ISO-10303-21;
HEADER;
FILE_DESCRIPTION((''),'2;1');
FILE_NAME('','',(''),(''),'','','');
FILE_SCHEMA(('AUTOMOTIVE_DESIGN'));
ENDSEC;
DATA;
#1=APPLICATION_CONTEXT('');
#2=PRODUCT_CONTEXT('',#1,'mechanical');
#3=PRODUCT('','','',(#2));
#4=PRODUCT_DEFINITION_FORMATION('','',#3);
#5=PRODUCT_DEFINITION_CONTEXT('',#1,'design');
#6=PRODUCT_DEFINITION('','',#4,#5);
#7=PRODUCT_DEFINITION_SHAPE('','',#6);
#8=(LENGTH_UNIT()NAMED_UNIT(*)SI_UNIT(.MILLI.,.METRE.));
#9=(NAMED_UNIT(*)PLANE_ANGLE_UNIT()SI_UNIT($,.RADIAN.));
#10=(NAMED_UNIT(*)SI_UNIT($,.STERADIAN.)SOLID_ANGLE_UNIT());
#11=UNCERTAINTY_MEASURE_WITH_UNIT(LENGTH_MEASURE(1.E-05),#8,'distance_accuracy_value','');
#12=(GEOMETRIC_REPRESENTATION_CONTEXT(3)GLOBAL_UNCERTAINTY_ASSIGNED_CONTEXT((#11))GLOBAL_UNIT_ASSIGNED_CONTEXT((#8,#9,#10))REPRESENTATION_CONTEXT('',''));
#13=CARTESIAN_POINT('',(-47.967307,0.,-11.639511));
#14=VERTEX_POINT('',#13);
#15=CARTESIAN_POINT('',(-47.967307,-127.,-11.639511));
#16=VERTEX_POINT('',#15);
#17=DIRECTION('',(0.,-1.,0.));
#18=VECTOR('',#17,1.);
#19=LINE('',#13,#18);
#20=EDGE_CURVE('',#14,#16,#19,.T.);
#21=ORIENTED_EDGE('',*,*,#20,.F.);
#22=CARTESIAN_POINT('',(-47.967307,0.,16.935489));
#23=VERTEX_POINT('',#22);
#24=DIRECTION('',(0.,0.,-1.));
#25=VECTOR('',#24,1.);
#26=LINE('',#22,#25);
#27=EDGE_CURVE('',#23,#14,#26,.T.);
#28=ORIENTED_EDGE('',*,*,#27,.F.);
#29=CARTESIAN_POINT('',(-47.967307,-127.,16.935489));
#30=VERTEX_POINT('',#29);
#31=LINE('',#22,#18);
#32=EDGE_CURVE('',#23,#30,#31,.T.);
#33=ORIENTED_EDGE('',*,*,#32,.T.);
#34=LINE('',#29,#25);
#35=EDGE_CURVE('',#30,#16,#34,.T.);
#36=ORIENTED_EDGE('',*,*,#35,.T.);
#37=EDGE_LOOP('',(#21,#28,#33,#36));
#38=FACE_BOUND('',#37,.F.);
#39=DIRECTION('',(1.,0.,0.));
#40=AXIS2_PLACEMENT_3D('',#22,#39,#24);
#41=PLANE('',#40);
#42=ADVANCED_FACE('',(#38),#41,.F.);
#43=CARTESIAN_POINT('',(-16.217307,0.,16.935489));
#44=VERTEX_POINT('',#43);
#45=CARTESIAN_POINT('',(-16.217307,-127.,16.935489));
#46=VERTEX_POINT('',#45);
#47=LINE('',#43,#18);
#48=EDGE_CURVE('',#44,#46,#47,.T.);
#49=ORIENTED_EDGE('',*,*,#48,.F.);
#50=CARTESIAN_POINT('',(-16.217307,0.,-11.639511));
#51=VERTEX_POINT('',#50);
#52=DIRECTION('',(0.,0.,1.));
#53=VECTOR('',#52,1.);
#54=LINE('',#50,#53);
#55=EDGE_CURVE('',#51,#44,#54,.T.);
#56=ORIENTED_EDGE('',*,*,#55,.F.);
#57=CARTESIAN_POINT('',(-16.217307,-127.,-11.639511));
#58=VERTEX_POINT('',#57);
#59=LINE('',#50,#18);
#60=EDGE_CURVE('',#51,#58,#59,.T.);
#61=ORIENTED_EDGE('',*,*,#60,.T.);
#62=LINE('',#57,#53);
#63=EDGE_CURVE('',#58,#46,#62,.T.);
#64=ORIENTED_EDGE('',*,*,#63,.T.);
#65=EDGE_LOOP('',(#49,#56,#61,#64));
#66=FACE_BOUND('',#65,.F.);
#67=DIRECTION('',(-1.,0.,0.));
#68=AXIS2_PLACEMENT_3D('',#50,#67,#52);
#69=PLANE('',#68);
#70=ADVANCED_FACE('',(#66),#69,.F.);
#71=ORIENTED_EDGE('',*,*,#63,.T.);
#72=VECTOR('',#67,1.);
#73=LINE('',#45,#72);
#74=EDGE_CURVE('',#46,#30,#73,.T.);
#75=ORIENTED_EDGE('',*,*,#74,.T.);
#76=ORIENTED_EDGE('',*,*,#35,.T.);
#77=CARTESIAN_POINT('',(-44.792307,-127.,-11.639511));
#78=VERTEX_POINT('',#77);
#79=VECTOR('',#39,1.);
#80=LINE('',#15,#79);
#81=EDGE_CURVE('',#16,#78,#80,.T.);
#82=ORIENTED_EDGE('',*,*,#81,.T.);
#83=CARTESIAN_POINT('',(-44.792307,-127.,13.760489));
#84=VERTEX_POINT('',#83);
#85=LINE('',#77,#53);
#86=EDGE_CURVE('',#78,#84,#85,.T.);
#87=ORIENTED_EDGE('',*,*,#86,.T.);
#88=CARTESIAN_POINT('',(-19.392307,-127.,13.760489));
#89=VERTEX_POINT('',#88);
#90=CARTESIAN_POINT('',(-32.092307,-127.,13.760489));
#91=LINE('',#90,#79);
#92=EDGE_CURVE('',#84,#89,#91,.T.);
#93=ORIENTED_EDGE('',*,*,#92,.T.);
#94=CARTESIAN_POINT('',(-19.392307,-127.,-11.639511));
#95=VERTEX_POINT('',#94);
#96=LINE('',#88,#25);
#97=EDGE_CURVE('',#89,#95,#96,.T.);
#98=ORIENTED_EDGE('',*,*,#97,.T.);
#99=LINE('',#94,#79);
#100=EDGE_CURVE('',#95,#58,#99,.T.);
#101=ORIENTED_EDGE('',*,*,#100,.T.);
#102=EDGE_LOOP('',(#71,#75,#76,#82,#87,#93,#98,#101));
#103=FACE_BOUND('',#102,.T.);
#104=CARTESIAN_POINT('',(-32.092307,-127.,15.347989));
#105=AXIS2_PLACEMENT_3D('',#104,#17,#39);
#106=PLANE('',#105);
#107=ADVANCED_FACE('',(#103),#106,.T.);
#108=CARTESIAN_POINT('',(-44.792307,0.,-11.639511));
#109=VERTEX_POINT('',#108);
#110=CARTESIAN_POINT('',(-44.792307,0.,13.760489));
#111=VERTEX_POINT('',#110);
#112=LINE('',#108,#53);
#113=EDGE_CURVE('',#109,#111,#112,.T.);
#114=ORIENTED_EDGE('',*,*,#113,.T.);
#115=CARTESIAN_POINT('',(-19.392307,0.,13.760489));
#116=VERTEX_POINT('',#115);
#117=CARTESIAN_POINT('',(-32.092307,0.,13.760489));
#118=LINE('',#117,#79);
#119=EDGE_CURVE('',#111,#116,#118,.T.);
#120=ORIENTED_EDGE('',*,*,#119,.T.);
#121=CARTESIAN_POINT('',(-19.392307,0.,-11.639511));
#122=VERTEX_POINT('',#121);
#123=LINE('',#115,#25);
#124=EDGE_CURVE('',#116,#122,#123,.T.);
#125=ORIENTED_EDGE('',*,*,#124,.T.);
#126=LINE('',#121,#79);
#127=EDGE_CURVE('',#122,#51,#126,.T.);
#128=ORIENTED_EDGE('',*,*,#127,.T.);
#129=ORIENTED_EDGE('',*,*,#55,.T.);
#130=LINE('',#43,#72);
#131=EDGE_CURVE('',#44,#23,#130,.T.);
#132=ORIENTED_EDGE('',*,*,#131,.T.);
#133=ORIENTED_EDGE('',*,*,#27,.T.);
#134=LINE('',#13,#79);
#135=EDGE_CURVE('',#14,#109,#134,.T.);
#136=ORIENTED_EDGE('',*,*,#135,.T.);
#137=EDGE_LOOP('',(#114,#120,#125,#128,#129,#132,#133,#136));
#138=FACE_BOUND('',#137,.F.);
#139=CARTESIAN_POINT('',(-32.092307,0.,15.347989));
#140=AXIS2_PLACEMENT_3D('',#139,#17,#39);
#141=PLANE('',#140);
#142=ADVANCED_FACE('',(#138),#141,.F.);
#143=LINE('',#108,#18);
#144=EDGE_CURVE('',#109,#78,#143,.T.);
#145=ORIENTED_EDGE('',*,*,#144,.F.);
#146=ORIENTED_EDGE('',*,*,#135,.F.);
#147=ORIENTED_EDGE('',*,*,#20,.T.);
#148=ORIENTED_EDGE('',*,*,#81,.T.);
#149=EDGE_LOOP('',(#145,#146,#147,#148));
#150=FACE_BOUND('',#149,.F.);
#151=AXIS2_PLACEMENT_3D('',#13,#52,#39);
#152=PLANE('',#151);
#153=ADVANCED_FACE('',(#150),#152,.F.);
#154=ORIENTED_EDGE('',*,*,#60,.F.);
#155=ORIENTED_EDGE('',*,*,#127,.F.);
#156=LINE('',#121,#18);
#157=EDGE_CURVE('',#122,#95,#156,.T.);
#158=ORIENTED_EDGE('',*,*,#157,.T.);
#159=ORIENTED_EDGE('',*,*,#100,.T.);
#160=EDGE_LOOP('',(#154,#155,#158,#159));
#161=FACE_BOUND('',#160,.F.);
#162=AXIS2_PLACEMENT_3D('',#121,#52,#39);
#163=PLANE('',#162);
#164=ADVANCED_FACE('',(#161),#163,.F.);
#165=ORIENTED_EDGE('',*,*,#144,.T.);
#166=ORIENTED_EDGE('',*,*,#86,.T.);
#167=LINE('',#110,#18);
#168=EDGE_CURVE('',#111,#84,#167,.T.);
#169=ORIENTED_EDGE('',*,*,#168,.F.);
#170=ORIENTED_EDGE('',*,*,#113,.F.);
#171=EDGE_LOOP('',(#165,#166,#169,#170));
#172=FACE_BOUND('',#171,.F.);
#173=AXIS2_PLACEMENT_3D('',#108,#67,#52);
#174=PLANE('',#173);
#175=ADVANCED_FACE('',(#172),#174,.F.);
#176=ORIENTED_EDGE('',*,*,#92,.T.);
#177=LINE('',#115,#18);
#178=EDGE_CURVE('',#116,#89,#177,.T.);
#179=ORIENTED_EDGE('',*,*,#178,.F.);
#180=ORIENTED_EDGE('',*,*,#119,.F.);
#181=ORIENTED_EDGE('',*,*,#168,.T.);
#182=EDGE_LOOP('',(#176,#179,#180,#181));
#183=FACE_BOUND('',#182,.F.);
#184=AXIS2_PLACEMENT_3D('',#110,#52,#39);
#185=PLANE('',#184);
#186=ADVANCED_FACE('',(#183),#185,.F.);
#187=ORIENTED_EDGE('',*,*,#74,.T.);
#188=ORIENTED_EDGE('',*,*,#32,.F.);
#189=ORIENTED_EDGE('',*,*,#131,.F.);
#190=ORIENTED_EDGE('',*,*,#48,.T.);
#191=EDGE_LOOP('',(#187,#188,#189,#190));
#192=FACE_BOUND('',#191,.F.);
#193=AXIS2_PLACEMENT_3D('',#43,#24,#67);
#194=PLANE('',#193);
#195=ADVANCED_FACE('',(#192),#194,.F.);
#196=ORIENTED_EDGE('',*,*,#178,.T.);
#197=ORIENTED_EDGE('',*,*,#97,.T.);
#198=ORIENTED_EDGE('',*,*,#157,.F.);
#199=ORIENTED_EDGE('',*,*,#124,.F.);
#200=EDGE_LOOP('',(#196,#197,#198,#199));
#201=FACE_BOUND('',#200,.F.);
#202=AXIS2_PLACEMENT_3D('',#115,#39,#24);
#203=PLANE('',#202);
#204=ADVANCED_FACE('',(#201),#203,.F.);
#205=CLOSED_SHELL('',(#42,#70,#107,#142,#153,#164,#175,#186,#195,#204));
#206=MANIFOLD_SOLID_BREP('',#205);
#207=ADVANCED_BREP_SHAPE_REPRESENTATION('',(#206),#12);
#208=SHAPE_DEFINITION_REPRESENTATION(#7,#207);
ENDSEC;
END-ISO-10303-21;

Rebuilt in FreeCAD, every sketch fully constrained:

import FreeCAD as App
import Part
import Sketcher
Q = App.Units.Quantity


def add_polygon(sketch, points):
    """Adds a closed chain of lines whose ends are joined by coincident constraints."""
    first, n = sketch.GeometryCount, len(points)
    for a, b in zip(points, points[1:] + points[:1]):
        sketch.addGeometry(Part.LineSegment(App.Vector(*a, 0), App.Vector(*b, 0)), False)
    for i in range(n):
        sketch.addConstraint(Sketcher.Constraint("Coincident", first + i, 2, first + (i + 1) % n, 1))

doc = App.newDocument("Part")
body = doc.addObject("PartDesign::Body", "Body")

sketch1 = body.newObject("Sketcher::SketchObject", "Sketch")
sketch1.AttachmentSupport = (doc.getObject("XZ_Plane"), [""])
sketch1.MapMode = "FlatFace"
add_polygon(sketch1, [(-44.8, 13.8), (-19.4, 13.8), (-19.4, -11.6), (-16.2, -11.6), (-16.2, 16.9), (-48, 16.9), (-48, -11.6), (-44.8, -11.6)])
sketch1.addConstraint([
    Sketcher.Constraint("Horizontal", 0),
    Sketcher.Constraint("Vertical", 1),
    Sketcher.Constraint("Horizontal", 2),
    Sketcher.Constraint("Vertical", 3),
    Sketcher.Constraint("Horizontal", 4),
    Sketcher.Constraint("Vertical", 5),
    Sketcher.Constraint("Horizontal", 6),
    Sketcher.Constraint("Vertical", 7),
    Sketcher.Constraint("Horizontal", 2, 2, 5, 2),
    Sketcher.Constraint("Equal", 2, 6),
    Sketcher.Constraint("Equal", 0, 1),
    Sketcher.Constraint("DistanceX", 0, 1, 0, 2, Q("1 in")),
    Sketcher.Constraint("DistanceX", 4, 2, 4, 1, Q("1.25 in")),
    Sketcher.Constraint("DistanceY", 3, 1, 3, 2, Q("1.125 in")),
    Sketcher.Constraint("DistanceY", -1, 1, 0, 2, 13.760489),
    Sketcher.Constraint("DistanceX", 0, 2, -1, 1, 19.392307),
])
pad1 = body.newObject("PartDesign::Pad", "Pad")
pad1.Profile = sketch1
pad1.Length = Q("5 in")

doc.recompute()
